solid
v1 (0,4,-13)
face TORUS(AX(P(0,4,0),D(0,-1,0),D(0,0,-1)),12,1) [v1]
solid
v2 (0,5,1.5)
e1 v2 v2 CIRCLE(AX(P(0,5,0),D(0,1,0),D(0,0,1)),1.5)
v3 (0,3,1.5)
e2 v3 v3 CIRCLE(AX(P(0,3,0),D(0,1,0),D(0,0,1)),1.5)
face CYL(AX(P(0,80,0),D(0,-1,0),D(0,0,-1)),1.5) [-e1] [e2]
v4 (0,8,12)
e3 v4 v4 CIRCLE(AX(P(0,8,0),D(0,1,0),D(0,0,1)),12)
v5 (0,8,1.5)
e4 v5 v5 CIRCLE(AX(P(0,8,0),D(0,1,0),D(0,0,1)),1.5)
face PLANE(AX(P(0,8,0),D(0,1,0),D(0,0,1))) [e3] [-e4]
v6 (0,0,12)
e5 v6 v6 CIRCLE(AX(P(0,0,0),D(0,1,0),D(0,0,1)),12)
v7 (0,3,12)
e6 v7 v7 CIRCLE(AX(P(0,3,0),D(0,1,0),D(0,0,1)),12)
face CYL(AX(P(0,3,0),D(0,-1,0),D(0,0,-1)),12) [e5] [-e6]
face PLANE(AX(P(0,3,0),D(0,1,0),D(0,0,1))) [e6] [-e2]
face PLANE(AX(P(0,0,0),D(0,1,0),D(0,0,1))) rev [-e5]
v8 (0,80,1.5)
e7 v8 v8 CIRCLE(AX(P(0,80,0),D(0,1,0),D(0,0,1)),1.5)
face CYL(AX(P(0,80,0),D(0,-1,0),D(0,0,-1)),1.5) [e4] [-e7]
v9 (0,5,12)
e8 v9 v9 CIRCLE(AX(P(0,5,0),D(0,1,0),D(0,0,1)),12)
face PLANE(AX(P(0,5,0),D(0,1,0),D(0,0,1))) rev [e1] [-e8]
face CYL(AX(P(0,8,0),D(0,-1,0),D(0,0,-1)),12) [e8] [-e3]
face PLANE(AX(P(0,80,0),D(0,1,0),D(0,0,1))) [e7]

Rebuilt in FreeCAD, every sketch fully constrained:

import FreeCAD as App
import Part
import Sketcher

V = App.Vector
Q = App.Units.Quantity

doc = App.newDocument("Part")
body = doc.addObject("PartDesign::Body", "Body")

# Sketch on XZ plane
sketch1 = body.newObject("Sketcher::SketchObject", "Sketch")
sketch1.AttachmentSupport = (doc.getObject("XZ_Plane"), [""])
sketch1.MapMode = "FlatFace"
sketch1.addGeometry(Part.Circle(V(0, 0, 0), V(0, 0, 1), 12), False)
sketch1.addGeometry(Part.Circle(V(0, 0, 0), V(0, 0, 1), 1.5), False)
sketch1.addConstraint(Sketcher.Constraint("Coincident", 0, 3, -1, 1))
sketch1.addConstraint(Sketcher.Constraint("Coincident", 1, 3, -1, 1))
sketch1.addConstraint(Sketcher.Constraint("Diameter", 0, Q("24 mm")))
sketch1.addConstraint(Sketcher.Constraint("Diameter", 1, Q("3 mm")))
pad1 = body.newObject("PartDesign::Pad", "Pad")
pad1.Profile = sketch1
pad1.Length = 3
pad1.Reversed = True
body2 = doc.addObject("PartDesign::Body", "Body001")

# Sketch on XY plane
sketch2 = body2.newObject("Sketcher::SketchObject", "Sketch001")
sketch2.AttachmentSupport = (doc.getObject("XY_Plane001"), [""])
sketch2.MapMode = "FlatFace"
sketch2.addGeometry(Part.Circle(V(-12, 4, 0), V(0, 0, 1), 1), False)
sketch2.addConstraint(Sketcher.Constraint("Diameter", 0, Q("2 mm")))
sketch2.addConstraint(Sketcher.Constraint("DistanceX", 0, 3, -1, 1, Q("12 mm")))
sketch2.addConstraint(Sketcher.Constraint("DistanceY", -1, 1, 0, 3, Q("4 mm")))
revolution = body2.newObject("PartDesign::Revolution", "Revolution")
revolution.Profile = sketch2
revolution.ReferenceAxis = (sketch2, ["V_Axis"])
revolution.Angle = 360
body3 = doc.addObject("PartDesign::Body", "Body002")

# Sketch on XZ plane
sketch3 = body3.newObject("Sketcher::SketchObject", "Sketch002")
sketch3.AttachmentSupport = (doc.getObject("XZ_Plane002"), [""])
sketch3.MapMode = "FlatFace"
sketch3.AttachmentOffset = App.Placement(V(0, 0, -5), App.Rotation())
sketch3.addGeometry(Part.Circle(V(0, 0, 0), V(0, 0, 1), 12), False)
sketch3.addGeometry(Part.Circle(V(0, 0, 0), V(0, 0, 1), 1.5), False)
sketch3.addConstraint(Sketcher.Constraint("Coincident", 0, 3, -1, 1))
sketch3.addConstraint(Sketcher.Constraint("Coincident", 1, 3, -1, 1))
sketch3.addConstraint(Sketcher.Constraint("Diameter", 0, Q("24 mm")))
sketch3.addConstraint(Sketcher.Constraint("Diameter", 1, Q("3 mm")))
pad2 = body3.newObject("PartDesign::Pad", "Pad001")
pad2.Profile = sketch3
pad2.Length = 3
pad2.Reversed = True
body.AllowCompound = True
doc.recompute()

boolean = body.newObject("PartDesign::Boolean", "Boolean")
boolean.Type = "Fuse"
boolean.addObjects([body3])

# Sketch on XZ plane
sketch4 = body.newObject("Sketcher::SketchObject", "Sketch003")
sketch4.AttachmentSupport = (doc.getObject("XZ_Plane"), [""])
sketch4.MapMode = "FlatFace"
sketch4.addGeometry(Part.Circle(V(0, 0, 0), V(0, 0, 1), 1.5), False)
sketch4.addConstraint(Sketcher.Constraint("Coincident", 0, 3, -1, 1))
sketch4.addConstraint(Sketcher.Constraint("Diameter", 0, Q("3 mm")))
pad3 = body.newObject("PartDesign::Pad", "Pad002")
pad3.Profile = sketch4
pad3.Length = 80
pad3.Reversed = True

doc.recompute()
